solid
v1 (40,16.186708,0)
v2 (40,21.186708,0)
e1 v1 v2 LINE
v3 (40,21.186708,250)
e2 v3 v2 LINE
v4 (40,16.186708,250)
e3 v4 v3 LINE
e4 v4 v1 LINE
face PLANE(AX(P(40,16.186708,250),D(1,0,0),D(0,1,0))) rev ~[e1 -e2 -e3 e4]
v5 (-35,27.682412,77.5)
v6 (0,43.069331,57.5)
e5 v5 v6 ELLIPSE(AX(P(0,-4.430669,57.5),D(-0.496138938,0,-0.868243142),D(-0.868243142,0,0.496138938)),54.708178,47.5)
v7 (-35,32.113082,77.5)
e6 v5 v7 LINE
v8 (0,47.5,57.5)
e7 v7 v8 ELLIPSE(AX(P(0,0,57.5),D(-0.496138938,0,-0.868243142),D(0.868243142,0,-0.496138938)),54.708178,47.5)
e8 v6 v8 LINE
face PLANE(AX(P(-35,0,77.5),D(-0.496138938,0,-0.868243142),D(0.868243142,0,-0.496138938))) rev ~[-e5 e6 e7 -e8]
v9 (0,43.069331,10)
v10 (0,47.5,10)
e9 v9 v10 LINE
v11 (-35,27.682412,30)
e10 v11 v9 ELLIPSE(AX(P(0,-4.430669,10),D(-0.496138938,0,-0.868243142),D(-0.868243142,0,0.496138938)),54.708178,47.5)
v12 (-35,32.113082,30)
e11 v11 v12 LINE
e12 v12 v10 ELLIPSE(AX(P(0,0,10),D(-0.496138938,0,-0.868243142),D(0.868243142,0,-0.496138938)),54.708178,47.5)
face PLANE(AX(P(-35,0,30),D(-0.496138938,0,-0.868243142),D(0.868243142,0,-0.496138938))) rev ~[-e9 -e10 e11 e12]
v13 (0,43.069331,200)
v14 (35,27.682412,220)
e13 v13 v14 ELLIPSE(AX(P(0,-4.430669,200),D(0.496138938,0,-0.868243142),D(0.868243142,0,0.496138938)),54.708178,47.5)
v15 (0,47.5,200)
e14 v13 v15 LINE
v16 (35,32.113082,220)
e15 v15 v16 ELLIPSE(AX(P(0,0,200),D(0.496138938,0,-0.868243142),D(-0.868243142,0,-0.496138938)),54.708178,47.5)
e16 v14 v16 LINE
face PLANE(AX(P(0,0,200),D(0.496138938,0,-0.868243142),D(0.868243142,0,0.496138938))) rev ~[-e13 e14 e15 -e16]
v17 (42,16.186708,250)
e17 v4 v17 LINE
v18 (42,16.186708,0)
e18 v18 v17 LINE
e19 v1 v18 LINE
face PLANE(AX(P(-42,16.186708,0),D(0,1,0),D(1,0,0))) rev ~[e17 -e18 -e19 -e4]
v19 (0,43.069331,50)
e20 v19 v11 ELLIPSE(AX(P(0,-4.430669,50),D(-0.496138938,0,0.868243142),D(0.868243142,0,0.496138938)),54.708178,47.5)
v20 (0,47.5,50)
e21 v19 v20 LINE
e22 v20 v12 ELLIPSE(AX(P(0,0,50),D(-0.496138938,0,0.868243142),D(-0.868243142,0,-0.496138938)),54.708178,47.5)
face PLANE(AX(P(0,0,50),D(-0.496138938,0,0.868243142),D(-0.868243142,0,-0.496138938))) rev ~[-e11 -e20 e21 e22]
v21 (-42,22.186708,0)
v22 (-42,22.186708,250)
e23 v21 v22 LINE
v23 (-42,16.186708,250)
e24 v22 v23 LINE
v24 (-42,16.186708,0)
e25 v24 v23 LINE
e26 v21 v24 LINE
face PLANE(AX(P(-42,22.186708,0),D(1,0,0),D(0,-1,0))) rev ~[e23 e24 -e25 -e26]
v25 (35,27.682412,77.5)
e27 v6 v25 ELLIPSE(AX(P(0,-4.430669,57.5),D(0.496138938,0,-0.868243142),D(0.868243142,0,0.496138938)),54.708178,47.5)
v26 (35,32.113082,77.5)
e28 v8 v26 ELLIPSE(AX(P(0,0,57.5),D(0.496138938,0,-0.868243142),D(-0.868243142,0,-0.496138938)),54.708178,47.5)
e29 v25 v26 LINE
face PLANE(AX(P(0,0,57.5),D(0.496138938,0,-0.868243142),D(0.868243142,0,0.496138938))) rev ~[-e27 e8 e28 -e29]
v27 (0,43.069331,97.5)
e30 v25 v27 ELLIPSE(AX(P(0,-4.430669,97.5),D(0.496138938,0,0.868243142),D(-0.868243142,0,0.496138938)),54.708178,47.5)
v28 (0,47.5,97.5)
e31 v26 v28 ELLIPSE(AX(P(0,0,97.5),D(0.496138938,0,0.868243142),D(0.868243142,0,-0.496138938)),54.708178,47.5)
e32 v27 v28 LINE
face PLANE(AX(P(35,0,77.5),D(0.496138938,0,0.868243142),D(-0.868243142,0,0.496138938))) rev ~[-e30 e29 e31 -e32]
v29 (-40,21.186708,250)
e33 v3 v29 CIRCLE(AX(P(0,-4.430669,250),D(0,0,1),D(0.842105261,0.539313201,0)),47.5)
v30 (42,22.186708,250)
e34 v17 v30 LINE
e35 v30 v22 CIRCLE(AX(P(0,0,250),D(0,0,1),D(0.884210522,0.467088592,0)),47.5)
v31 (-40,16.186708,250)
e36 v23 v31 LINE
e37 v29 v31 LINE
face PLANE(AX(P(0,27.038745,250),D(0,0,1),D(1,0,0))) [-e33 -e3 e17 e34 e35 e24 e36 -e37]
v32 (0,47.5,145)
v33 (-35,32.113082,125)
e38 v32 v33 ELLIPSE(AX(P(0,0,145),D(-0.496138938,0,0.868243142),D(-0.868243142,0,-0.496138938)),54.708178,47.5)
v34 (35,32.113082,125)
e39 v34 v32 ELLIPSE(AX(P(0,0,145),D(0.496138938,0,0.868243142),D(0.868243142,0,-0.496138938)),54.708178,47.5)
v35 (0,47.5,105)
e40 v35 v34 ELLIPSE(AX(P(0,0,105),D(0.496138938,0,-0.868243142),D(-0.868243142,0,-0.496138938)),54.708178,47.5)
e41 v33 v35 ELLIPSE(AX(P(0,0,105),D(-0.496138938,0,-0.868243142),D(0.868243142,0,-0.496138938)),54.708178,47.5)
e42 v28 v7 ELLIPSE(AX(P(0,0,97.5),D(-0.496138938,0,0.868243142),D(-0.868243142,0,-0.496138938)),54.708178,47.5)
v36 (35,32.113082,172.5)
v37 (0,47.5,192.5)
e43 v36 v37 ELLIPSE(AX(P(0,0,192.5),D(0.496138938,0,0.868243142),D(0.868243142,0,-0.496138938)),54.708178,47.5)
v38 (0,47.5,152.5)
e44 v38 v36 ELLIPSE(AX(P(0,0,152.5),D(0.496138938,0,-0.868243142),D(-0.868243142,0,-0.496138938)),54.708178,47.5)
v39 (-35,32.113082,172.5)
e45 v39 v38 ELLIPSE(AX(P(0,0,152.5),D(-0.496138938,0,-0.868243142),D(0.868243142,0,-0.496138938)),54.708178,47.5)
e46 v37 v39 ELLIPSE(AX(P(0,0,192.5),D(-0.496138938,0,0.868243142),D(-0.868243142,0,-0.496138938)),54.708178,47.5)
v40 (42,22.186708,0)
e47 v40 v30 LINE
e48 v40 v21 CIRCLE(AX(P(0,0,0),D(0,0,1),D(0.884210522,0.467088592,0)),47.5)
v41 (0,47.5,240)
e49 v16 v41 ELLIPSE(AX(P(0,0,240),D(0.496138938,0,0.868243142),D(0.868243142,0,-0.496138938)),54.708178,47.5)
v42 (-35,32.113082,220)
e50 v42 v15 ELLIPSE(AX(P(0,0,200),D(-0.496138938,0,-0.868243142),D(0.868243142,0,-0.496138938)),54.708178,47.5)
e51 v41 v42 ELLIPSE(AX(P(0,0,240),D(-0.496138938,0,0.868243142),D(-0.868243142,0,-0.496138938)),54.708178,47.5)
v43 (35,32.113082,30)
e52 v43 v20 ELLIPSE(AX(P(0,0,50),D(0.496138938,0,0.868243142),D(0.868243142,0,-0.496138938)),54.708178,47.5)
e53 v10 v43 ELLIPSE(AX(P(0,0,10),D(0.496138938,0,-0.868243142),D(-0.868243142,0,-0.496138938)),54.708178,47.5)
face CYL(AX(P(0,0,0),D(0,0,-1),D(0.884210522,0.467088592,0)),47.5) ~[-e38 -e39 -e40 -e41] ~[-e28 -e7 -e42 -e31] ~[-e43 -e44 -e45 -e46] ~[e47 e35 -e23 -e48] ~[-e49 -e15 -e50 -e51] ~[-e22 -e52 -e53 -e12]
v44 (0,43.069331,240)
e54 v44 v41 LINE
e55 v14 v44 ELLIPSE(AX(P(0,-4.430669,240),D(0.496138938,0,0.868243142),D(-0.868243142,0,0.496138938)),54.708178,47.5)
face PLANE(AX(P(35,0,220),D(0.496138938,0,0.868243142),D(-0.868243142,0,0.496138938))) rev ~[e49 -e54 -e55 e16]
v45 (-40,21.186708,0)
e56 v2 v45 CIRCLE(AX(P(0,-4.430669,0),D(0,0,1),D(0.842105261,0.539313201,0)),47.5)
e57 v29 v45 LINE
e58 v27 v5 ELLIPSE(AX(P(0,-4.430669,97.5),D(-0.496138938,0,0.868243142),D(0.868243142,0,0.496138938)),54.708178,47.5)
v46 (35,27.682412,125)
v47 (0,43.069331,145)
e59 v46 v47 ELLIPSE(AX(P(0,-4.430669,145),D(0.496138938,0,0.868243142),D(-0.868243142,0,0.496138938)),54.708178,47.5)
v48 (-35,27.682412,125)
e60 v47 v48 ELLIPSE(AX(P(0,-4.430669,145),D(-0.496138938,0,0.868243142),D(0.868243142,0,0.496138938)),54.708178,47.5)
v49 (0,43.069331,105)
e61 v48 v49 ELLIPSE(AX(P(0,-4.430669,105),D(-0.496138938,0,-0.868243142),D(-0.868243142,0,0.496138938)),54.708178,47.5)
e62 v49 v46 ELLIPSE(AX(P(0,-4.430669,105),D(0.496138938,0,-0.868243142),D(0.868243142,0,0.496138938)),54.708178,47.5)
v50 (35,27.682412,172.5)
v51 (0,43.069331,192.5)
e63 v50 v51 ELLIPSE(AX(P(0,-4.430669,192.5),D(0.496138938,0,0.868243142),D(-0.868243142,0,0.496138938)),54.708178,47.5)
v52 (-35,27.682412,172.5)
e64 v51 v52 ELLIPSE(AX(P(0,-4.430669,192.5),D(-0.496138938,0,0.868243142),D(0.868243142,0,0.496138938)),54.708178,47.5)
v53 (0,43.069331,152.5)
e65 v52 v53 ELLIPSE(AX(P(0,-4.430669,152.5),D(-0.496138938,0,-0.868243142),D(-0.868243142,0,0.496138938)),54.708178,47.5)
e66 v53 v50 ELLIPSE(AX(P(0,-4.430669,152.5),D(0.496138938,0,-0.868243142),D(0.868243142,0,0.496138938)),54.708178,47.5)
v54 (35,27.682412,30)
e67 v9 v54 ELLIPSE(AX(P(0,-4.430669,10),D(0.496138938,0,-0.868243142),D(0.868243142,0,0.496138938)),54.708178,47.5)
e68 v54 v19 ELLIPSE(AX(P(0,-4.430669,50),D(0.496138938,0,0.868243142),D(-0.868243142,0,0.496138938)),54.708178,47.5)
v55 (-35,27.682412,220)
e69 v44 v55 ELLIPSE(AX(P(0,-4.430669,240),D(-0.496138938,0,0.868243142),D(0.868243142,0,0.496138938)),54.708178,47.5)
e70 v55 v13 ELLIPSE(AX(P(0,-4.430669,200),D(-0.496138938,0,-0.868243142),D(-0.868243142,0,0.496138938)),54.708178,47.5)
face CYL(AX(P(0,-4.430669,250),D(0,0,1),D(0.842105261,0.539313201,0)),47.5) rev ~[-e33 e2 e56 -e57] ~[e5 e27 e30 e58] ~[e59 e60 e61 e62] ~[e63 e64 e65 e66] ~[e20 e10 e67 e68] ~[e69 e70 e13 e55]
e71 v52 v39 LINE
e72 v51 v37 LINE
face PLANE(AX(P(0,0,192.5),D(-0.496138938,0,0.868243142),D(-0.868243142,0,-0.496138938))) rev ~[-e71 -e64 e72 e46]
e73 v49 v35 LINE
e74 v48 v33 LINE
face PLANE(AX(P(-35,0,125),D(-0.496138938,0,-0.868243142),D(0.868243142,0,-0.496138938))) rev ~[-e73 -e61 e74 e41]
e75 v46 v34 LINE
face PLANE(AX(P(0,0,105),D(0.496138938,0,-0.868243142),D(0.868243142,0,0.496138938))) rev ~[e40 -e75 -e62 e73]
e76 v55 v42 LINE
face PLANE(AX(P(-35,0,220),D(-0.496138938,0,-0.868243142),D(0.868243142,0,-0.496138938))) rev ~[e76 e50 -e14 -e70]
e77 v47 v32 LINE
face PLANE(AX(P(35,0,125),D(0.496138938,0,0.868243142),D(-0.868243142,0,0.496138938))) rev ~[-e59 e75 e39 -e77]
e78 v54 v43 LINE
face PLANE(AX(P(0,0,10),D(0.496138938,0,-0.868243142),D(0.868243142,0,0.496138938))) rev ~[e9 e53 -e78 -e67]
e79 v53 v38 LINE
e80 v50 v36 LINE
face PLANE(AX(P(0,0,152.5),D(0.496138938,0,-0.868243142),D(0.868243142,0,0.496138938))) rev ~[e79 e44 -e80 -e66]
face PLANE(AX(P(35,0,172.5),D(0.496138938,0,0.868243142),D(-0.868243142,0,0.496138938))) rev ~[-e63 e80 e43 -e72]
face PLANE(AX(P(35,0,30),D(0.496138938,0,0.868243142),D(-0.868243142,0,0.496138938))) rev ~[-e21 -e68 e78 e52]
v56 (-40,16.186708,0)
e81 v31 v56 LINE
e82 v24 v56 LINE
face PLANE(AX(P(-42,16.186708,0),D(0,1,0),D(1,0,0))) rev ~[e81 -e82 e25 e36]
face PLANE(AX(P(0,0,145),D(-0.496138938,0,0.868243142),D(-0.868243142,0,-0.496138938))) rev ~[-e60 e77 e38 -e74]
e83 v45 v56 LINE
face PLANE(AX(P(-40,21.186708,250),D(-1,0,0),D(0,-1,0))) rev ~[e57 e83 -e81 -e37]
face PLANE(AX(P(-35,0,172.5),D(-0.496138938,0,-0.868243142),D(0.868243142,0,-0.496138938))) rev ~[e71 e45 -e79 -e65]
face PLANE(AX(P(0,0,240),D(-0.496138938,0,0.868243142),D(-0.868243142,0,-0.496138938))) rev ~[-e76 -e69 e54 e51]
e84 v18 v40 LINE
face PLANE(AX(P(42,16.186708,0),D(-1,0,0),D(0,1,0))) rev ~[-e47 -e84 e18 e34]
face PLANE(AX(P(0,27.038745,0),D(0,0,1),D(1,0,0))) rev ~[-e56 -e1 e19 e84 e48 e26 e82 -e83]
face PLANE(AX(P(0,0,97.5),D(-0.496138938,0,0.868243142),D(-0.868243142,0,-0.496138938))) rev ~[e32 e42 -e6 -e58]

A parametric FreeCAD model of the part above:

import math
import FreeCAD as App
import Part
import Sketcher


def add_polygon(sketch, points):
    """Adds a closed chain of lines whose ends are joined by coincident constraints."""
    first, n = sketch.GeometryCount, len(points)
    for a, b in zip(points, points[1:] + points[:1]):
        sketch.addGeometry(Part.LineSegment(App.Vector(*a, 0), App.Vector(*b, 0)), False)
    for i in range(n):
        sketch.addConstraint(Sketcher.Constraint("Coincident", first + i, 2, first + (i + 1) % n, 1))

doc = App.newDocument("Part")
body = doc.addObject("PartDesign::Body", "Body")

sketch1 = body.newObject("Sketcher::SketchObject", "Sketch")
sketch1.AttachmentSupport = (doc.getObject("XY_Plane"), [""])
sketch1.MapMode = "FlatFace"
sketch1.addGeometry([
    Part.LineSegment(App.Vector(42, 16.186708, 0), App.Vector(42, 22.186708, 0)),
    Part.ArcOfCircle(Part.Circle(App.Vector(0, 0, 0), App.Vector(0, 0, 1), 47.5), math.radians(27.845476), math.radians(152.154524)),
    Part.LineSegment(App.Vector(-42, 22.186708, 0), App.Vector(-42, 16.186708, 0)),
    Part.LineSegment(App.Vector(-42, 16.186708, 0), App.Vector(42, 16.186708, 0)),
], False)
sketch1.addConstraint([
    Sketcher.Constraint("Coincident", 0, 2, 1, 1),
    Sketcher.Constraint("Coincident", 1, 2, 2, 1),
    Sketcher.Constraint("Coincident", 2, 2, 3, 1),
    Sketcher.Constraint("Coincident", 3, 2, 0, 1),
    Sketcher.Constraint("Vertical", 0),
    Sketcher.Constraint("Vertical", 2),
    Sketcher.Constraint("Horizontal", 3),
    Sketcher.Constraint("Coincident", 1, 3, -1, 1),
    Sketcher.Constraint("Horizontal", 0, 2, 1, 2),
    Sketcher.Constraint("Radius", 1, 47.5),
    Sketcher.Constraint("DistanceX", 3, 1, 3, 2, 84.0),
    Sketcher.Constraint("DistanceY", 0, 1, 0, 2, 6.0),
])
pad1 = body.newObject("PartDesign::Pad", "Pad")
pad1.Profile = sketch1
pad1.Length = 250

sketch2 = body.newObject("Sketcher::SketchObject", "Sketch001")
sketch2.AttachmentSupport = (doc.getObject("XY_Plane"), [""])
sketch2.MapMode = "FlatFace"
sketch2.AttachmentOffset = App.Placement(App.Vector(0, 0, 250), App.Rotation())
sketch2.addGeometry([
    Part.ArcOfCircle(Part.Circle(App.Vector(0, -4.430669, 0), App.Vector(0, 0, 1), 47.5), math.radians(32.636898), math.radians(147.363102)),
    Part.LineSegment(App.Vector(-40, 21.186708, 0), App.Vector(-40, 16.186708, 0)),
    Part.LineSegment(App.Vector(-40, 16.186708, 0), App.Vector(40, 16.186708, 0)),
    Part.LineSegment(App.Vector(40, 16.186708, 0), App.Vector(40, 21.186708, 0)),
], False)
sketch2.addConstraint([
    Sketcher.Constraint("Coincident", 0, 2, 1, 1),
    Sketcher.Constraint("Coincident", 1, 2, 2, 1),
    Sketcher.Constraint("Coincident", 2, 2, 3, 1),
    Sketcher.Constraint("Coincident", 3, 2, 0, 1),
    Sketcher.Constraint("Vertical", 1),
    Sketcher.Constraint("Horizontal", 2),
    Sketcher.Constraint("Vertical", 3),
    Sketcher.Constraint("Symmetric", 0, 2, 3, 2, -2),
    Sketcher.Constraint("Radius", 0, 47.5),
    Sketcher.Constraint("DistanceX", 2, 1, 2, 2, 80.0),
    Sketcher.Constraint("DistanceY", 1, 2, 1, 1, 5.0),
    Sketcher.Constraint("DistanceY", 0, 3, -1, 1, 4.430669),
])
pocket1 = body.newObject("PartDesign::Pocket", "Pocket")
pocket1.Profile = sketch2
pocket1.Type = "ThroughAll"

sketch3 = body.newObject("Sketcher::SketchObject", "Sketch002")
sketch3.AttachmentSupport = (doc.getObject("XZ_Plane"), [""])
sketch3.MapMode = "FlatFace"
add_polygon(sketch3, [(35, 220), (0, 240), (-35, 220), (0, 200)])
add_polygon(sketch3, [(35, 172.5), (0, 192.5), (-35, 172.5), (0, 152.5)])
add_polygon(sketch3, [(35, 125), (0, 145), (-35, 125), (0, 105)])
add_polygon(sketch3, [(35, 77.5), (0, 97.5), (-35, 77.5), (0, 57.5)])
add_polygon(sketch3, [(35, 30), (0, 50), (-35, 30), (0, 10)])
sketch3.addConstraint([
    Sketcher.Constraint("Symmetric", 1, 2, 3, 2, -2),
    Sketcher.Constraint("Symmetric", 5, 2, 7, 2, -2),
    Sketcher.Constraint("Symmetric", 9, 2, 11, 2, -2),
    Sketcher.Constraint("Symmetric", 13, 2, 15, 2, -2),
    Sketcher.Constraint("Symmetric", 17, 2, 19, 2, -2),
    Sketcher.Constraint("PointOnObject", 0, 2, -2),
    Sketcher.Constraint("PointOnObject", 2, 2, -2),
    Sketcher.Constraint("PointOnObject", 4, 2, -2),
    Sketcher.Constraint("PointOnObject", 6, 2, -2),
    Sketcher.Constraint("PointOnObject", 8, 2, -2),
    Sketcher.Constraint("PointOnObject", 10, 2, -2),
    Sketcher.Constraint("PointOnObject", 12, 2, -2),
    Sketcher.Constraint("PointOnObject", 14, 2, -2),
    Sketcher.Constraint("PointOnObject", 16, 2, -2),
    Sketcher.Constraint("PointOnObject", 18, 2, -2),
    Sketcher.Constraint("Parallel", 0, 2),
    Sketcher.Constraint("Parallel", 2, 4),
    Sketcher.Constraint("Parallel", 4, 6),
    Sketcher.Constraint("Parallel", 6, 8),
    Sketcher.Constraint("Parallel", 8, 10),
    Sketcher.Constraint("Parallel", 10, 12),
    Sketcher.Constraint("Parallel", 12, 14),
    Sketcher.Constraint("Parallel", 14, 16),
    Sketcher.Constraint("Parallel", 16, 18),
    Sketcher.Constraint("Vertical", 1, 2, 5, 2),
    Sketcher.Constraint("Vertical", 5, 2, 9, 2),
    Sketcher.Constraint("Vertical", 9, 2, 13, 2),
    Sketcher.Constraint("Vertical", 13, 2, 17, 2),
    Sketcher.Constraint("DistanceY", -1, 1, 0, 2, 240.0),
    Sketcher.Constraint("DistanceX", 1, 2, -1, 1, 35.0),
    Sketcher.Constraint("DistanceY", -1, 1, 1, 2, 220.0),
    Sketcher.Constraint("DistanceY", -1, 1, 8, 2, 145.0),
    Sketcher.Constraint("DistanceY", -1, 1, 16, 2, 50.0),
    Sketcher.Constraint("DistanceY", 12, 2, 6, 2, 55.0),
    Sketcher.Constraint("DistanceY", -1, 1, 4, 2, 192.5),
])
pocket2 = body.newObject("PartDesign::Pocket", "Pocket001")
pocket2.Profile = sketch3
pocket2.Type = "ThroughAll"

doc.recompute()
